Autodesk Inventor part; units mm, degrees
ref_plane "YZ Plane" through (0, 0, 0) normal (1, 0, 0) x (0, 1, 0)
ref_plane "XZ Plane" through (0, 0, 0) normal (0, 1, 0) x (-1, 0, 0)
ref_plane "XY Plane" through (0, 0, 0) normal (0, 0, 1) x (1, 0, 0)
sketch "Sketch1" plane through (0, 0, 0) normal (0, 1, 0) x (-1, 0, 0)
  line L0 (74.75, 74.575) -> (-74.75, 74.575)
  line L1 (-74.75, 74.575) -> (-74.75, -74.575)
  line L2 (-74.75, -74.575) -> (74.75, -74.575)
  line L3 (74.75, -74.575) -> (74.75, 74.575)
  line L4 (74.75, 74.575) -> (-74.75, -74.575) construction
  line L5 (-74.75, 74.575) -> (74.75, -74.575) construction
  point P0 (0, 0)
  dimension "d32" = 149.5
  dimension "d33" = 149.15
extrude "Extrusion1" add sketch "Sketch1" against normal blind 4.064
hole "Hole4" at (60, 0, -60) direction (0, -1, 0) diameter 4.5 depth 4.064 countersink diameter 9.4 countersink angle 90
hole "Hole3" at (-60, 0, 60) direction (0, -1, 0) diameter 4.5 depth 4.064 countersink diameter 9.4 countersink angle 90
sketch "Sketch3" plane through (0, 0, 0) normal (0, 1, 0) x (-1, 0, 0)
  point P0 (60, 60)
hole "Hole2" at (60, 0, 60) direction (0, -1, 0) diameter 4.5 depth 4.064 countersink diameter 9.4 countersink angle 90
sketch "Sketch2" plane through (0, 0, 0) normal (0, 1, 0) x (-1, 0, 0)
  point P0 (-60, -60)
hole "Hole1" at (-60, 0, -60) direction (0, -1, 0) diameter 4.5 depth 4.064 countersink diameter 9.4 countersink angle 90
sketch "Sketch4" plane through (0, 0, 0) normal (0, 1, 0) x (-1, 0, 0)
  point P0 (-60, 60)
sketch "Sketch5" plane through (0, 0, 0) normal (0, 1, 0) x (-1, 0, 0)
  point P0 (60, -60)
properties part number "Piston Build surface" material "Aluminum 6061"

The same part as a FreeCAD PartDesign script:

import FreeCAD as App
import Part
import Sketcher
Q = App.Units.Quantity


def add_polygon(sketch, points):
    """Adds a closed chain of lines whose ends are joined by coincident constraints."""
    first, n = sketch.GeometryCount, len(points)
    for a, b in zip(points, points[1:] + points[:1]):
        sketch.addGeometry(Part.LineSegment(App.Vector(*a, 0), App.Vector(*b, 0)), False)
    for i in range(n):
        sketch.addConstraint(Sketcher.Constraint("Coincident", first + i, 2, first + (i + 1) % n, 1))

doc = App.newDocument("Part")
params = doc.addObject("Spreadsheet::Sheet", "Params")
for row, (alias, value) in enumerate([
    ("sketch1_width", "149.5 mm"),
    ("sketch1_height", "149.15 mm"),
    ("pad1_length", "4.064 mm"),
    ("sketch2_diameter", "4.5 mm"),
    ("hole_diameter", "4.5 mm"),
    ("hole_depth", "4.064 mm"),
    ("hole_csink_diameter", "9.4 mm"),
    ("sketch3_diameter", "4.5 mm"),
    ("hole2_diameter", "4.5 mm"),
    ("hole2_depth", "4.064 mm"),
    ("hole2_csink_diameter", "9.4 mm"),
    ("sketch4_diameter", "4.5 mm"),
    ("hole3_diameter", "4.5 mm"),
    ("hole3_depth", "4.064 mm"),
    ("hole3_csink_diameter", "9.4 mm"),
    ("sketch5_diameter", "4.5 mm"),
    ("hole4_diameter", "4.5 mm"),
    ("hole4_depth", "4.064 mm"),
    ("hole4_csink_diameter", "9.4 mm"),
], start=1):
    params.set(f"A{row}", alias)
    params.set(f"B{row}", "=" + value)
    params.setAlias(f"B{row}", alias)

body = doc.addObject("PartDesign::Body", "Body")

sketch1 = doc.addObject("Sketcher::SketchObject", "Sketch")
body.addObject(sketch1)
sketch1.AttachmentSupport = (doc.XZ_Plane, [""])
sketch1.MapMode = "FlatFace"
add_polygon(sketch1, [(-75, -75), (-75, 75), (75, 75), (75, -75)])
sketch1.addConstraint([
    Sketcher.Constraint("Vertical", 0),
    Sketcher.Constraint("Horizontal", 1),
    Sketcher.Constraint("Vertical", 2),
    Sketcher.Constraint("Horizontal", 3),
    Sketcher.Constraint("Symmetric", 0, 2, 2, 2, -1, 1),
    Sketcher.Constraint("DistanceX", 1, 1, 1, 2, Q("149.5 mm")),
    Sketcher.Constraint("DistanceY", 0, 1, 0, 2, Q("149.15 mm")),
])
sketch1.setExpression("Constraints[9]", "Params.sketch1_width")
sketch1.setExpression("Constraints[10]", "Params.sketch1_height")
pad1 = doc.addObject("PartDesign::Pad", "Pad")
body.addObject(pad1)
pad1.Profile = sketch1
pad1.setExpression("Length", "Params.pad1_length")

sketch2 = doc.addObject("Sketcher::SketchObject", "Sketch001")
body.addObject(sketch2)
sketch2.AttachmentSupport = (doc.XZ_Plane, [""])
sketch2.MapMode = "FlatFace"
sketch2.addGeometry(Part.Circle(App.Vector(60, -60, 0), App.Vector(0, 0, 1), 2.2), False)
sketch2.addConstraint([
    Sketcher.Constraint("Diameter", 0, Q("4.5 mm")),
    Sketcher.Constraint("DistanceX", -1, 1, 0, 3, Q("60 mm")),
    Sketcher.Constraint("DistanceY", 0, 3, -1, 1, Q("60 mm")),
])
sketch2.setExpression("Constraints[0]", "Params.sketch2_diameter")
doc.recompute()
hole = doc.addObject("PartDesign::Hole", "Hole")
body.addObject(hole)
hole.Profile = sketch2
hole.ThreadType = "None"
hole.setExpression("Diameter", "Params.hole_diameter")
hole.DepthType = "Dimension"
hole.setExpression("Depth", "Params.hole_depth")
hole.DrillPoint = "Flat"
hole.HoleCutType = "Countersink"
hole.setExpression("HoleCutDiameter", "Params.hole_csink_diameter")
hole.HoleCutCountersinkAngle = 90
hole.Reversed = True

sketch3 = doc.addObject("Sketcher::SketchObject", "Sketch002")
body.addObject(sketch3)
sketch3.AttachmentSupport = (doc.XZ_Plane, [""])
sketch3.MapMode = "FlatFace"
sketch3.addGeometry(Part.Circle(App.Vector(-60, 60, 0), App.Vector(0, 0, 1), 2.2), False)
sketch3.addConstraint([
    Sketcher.Constraint("Diameter", 0, Q("4.5 mm")),
    Sketcher.Constraint("DistanceX", 0, 3, -1, 1, Q("60 mm")),
    Sketcher.Constraint("DistanceY", -1, 1, 0, 3, Q("60 mm")),
])
sketch3.setExpression("Constraints[0]", "Params.sketch3_diameter")
doc.recompute()
hole2 = doc.addObject("PartDesign::Hole", "Hole001")
body.addObject(hole2)
hole2.Profile = sketch3
hole2.ThreadType = "None"
hole2.setExpression("Diameter", "Params.hole2_diameter")
hole2.DepthType = "Dimension"
hole2.setExpression("Depth", "Params.hole2_depth")
hole2.DrillPoint = "Flat"
hole2.HoleCutType = "Countersink"
hole2.setExpression("HoleCutDiameter", "Params.hole2_csink_diameter")
hole2.HoleCutCountersinkAngle = 90
hole2.Reversed = True

sketch4 = doc.addObject("Sketcher::SketchObject", "Sketch003")
body.addObject(sketch4)
sketch4.AttachmentSupport = (doc.XZ_Plane, [""])
sketch4.MapMode = "FlatFace"
sketch4.addGeometry(Part.Circle(App.Vector(60, 60, 0), App.Vector(0, 0, 1), 2.2), False)
sketch4.addConstraint([
    Sketcher.Constraint("Diameter", 0, Q("4.5 mm")),
    Sketcher.Constraint("DistanceX", -1, 1, 0, 3, Q("60 mm")),
    Sketcher.Constraint("DistanceY", -1, 1, 0, 3, Q("60 mm")),
])
sketch4.setExpression("Constraints[0]", "Params.sketch4_diameter")
doc.recompute()
hole3 = doc.addObject("PartDesign::Hole", "Hole002")
body.addObject(hole3)
hole3.Profile = sketch4
hole3.ThreadType = "None"
hole3.setExpression("Diameter", "Params.hole3_diameter")
hole3.DepthType = "Dimension"
hole3.setExpression("Depth", "Params.hole3_depth")
hole3.DrillPoint = "Flat"
hole3.HoleCutType = "Countersink"
hole3.setExpression("HoleCutDiameter", "Params.hole3_csink_diameter")
hole3.HoleCutCountersinkAngle = 90
hole3.Reversed = True

sketch5 = doc.addObject("Sketcher::SketchObject", "Sketch004")
body.addObject(sketch5)
sketch5.AttachmentSupport = (doc.XZ_Plane, [""])
sketch5.MapMode = "FlatFace"
sketch5.addGeometry(Part.Circle(App.Vector(-60, -60, 0), App.Vector(0, 0, 1), 2.2), False)
sketch5.addConstraint([
    Sketcher.Constraint("Diameter", 0, Q("4.5 mm")),
    Sketcher.Constraint("DistanceX", 0, 3, -1, 1, Q("60 mm")),
    Sketcher.Constraint("DistanceY", 0, 3, -1, 1, Q("60 mm")),
])
sketch5.setExpression("Constraints[0]", "Params.sketch5_diameter")
doc.recompute()
hole4 = doc.addObject("PartDesign::Hole", "Hole003")
body.addObject(hole4)
hole4.Profile = sketch5
hole4.ThreadType = "None"
hole4.setExpression("Diameter", "Params.hole4_diameter")
hole4.DepthType = "Dimension"
hole4.setExpression("Depth", "Params.hole4_depth")
hole4.DrillPoint = "Flat"
hole4.HoleCutType = "Countersink"
hole4.setExpression("HoleCutDiameter", "Params.hole4_csink_diameter")
hole4.HoleCutCountersinkAngle = 90
hole4.Reversed = True

doc.recompute()
